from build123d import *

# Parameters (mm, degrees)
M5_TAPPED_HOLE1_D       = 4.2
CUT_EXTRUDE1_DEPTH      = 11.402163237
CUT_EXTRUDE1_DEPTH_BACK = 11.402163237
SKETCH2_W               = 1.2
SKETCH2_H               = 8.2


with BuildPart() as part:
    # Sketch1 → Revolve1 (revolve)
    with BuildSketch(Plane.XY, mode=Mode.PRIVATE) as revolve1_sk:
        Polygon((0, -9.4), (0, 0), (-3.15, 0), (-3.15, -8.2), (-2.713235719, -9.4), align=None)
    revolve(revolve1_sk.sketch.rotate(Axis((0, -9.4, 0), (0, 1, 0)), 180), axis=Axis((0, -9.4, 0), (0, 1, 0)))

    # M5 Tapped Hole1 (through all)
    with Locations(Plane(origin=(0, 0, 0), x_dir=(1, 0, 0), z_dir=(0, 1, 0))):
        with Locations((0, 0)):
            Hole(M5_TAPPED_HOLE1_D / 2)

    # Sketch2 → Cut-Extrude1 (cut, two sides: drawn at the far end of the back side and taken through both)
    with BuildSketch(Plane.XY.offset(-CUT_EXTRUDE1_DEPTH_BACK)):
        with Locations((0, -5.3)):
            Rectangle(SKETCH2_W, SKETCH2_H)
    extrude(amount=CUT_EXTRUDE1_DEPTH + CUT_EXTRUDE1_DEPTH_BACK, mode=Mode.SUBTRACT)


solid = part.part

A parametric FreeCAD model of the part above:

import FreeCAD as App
import Part
import Sketcher
Q = App.Units.Quantity

doc = App.newDocument("Part")
body = doc.addObject("PartDesign::Body", "Body")

# Sketch on XY plane
sketch1 = body.newObject("Sketcher::SketchObject", "Sketch")
sketch1.AttachmentSupport = (doc.getObject("XY_Plane"), [""])
sketch1.MapMode = "FlatFace"
sketch1.addGeometry(Part.LineSegment(App.Vector(0, -9.4, 0), App.Vector(0, 0, 0)), False)
sketch1.addGeometry(Part.LineSegment(App.Vector(0, 0, 0), App.Vector(-3.1, 0, 0)), False)
sketch1.addGeometry(Part.LineSegment(App.Vector(-3.1, 0, 0), App.Vector(-3.1, -8.2, 0)), False)
sketch1.addGeometry(Part.LineSegment(App.Vector(-3.1, -8.2, 0), App.Vector(-2.7, -9.4, 0)), False)
sketch1.addGeometry(Part.LineSegment(App.Vector(-2.7, -9.4, 0), App.Vector(0, -9.4, 0)), False)
sketch1.addConstraint(Sketcher.Constraint("Coincident", 0, 2, 1, 1))
sketch1.addConstraint(Sketcher.Constraint("Coincident", 1, 2, 2, 1))
sketch1.addConstraint(Sketcher.Constraint("Coincident", 2, 2, 3, 1))
sketch1.addConstraint(Sketcher.Constraint("Coincident", 3, 2, 4, 1))
sketch1.addConstraint(Sketcher.Constraint("Coincident", 4, 2, 0, 1))
sketch1.addConstraint(Sketcher.Constraint("Vertical", 0))
sketch1.addConstraint(Sketcher.Constraint("Horizontal", 1))
sketch1.addConstraint(Sketcher.Constraint("Vertical", 2))
sketch1.addConstraint(Sketcher.Constraint("Horizontal", 4))
sketch1.addConstraint(Sketcher.Constraint("Coincident", 0, 2, -1, 1))
sketch1.addConstraint(Sketcher.Constraint("Angle", 3, Q("-70 deg")))
sketch1.addConstraint(Sketcher.Constraint("DistanceY", 0, 1, 0, 2, 9.4))
sketch1.addConstraint(Sketcher.Constraint("DistanceY", 2, 2, 2, 1, 8.2))
sketch1.addConstraint(Sketcher.Constraint("DistanceX", 1, 2, 1, 1, 3.15))
revolution = body.newObject("PartDesign::Revolution", "Revolution")
revolution.Profile = sketch1
revolution.ReferenceAxis = (sketch1, ["V_Axis"])
revolution.Angle = 360

# Sketch on XZ plane
sketch2 = body.newObject("Sketcher::SketchObject", "Sketch001")
sketch2.AttachmentSupport = (doc.getObject("XZ_Plane"), [""])
sketch2.MapMode = "FlatFace"
sketch2.addGeometry(Part.Circle(App.Vector(0, 0, 0), App.Vector(0, 0, 1), 2.1), False)
sketch2.addConstraint(Sketcher.Constraint("Coincident", 0, 3, -1, 1))
sketch2.addConstraint(Sketcher.Constraint("Diameter", 0, 4.2))
doc.recompute()
hole = body.newObject("PartDesign::Hole", "Hole")
hole.Profile = sketch2
hole.ThreadType = "None"
hole.Diameter = 4.2
hole.DepthType = "ThroughAll"
hole.Reversed = True

# Sketch on XY plane
sketch3 = body.newObject("Sketcher::SketchObject", "Sketch002")
sketch3.AttachmentSupport = (doc.getObject("XY_Plane"), [""])
sketch3.MapMode = "FlatFace"
sketch3.addGeometry(Part.LineSegment(App.Vector(-0.6, -1.2, 0), App.Vector(-0.6, -9.4, 0)), False)
sketch3.addGeometry(Part.LineSegment(App.Vector(-0.6, -9.4, 0), App.Vector(0.6, -9.4, 0)), False)
sketch3.addGeometry(Part.LineSegment(App.Vector(0.6, -9.4, 0), App.Vector(0.6, -1.2, 0)), False)
sketch3.addGeometry(Part.LineSegment(App.Vector(0.6, -1.2, 0), App.Vector(-0.6, -1.2, 0)), False)
sketch3.addConstraint(Sketcher.Constraint("Coincident", 0, 2, 1, 1))
sketch3.addConstraint(Sketcher.Constraint("Coincident", 1, 2, 2, 1))
sketch3.addConstraint(Sketcher.Constraint("Coincident", 2, 2, 3, 1))
sketch3.addConstraint(Sketcher.Constraint("Coincident", 3, 2, 0, 1))
sketch3.addConstraint(Sketcher.Constraint("Vertical", 0))
sketch3.addConstraint(Sketcher.Constraint("Horizontal", 1))
sketch3.addConstraint(Sketcher.Constraint("Vertical", 2))
sketch3.addConstraint(Sketcher.Constraint("Horizontal", 3))
sketch3.addConstraint(Sketcher.Constraint("DistanceX", 1, 1, 1, 2, 1.2))
sketch3.addConstraint(Sketcher.Constraint("DistanceY", 0, 2, 0, 1, 8.2))
sketch3.addConstraint(Sketcher.Constraint("DistanceX", 0, 2, -1, 1, 0.6))
sketch3.addConstraint(Sketcher.Constraint("DistanceY", 0, 2, -1, 1, 9.4))
pocket1 = body.newObject("PartDesign::Pocket", "Pocket")
pocket1.Profile = sketch3
pocket1.Type = "ThroughAll"
pocket1.Midplane = True

doc.recompute()
